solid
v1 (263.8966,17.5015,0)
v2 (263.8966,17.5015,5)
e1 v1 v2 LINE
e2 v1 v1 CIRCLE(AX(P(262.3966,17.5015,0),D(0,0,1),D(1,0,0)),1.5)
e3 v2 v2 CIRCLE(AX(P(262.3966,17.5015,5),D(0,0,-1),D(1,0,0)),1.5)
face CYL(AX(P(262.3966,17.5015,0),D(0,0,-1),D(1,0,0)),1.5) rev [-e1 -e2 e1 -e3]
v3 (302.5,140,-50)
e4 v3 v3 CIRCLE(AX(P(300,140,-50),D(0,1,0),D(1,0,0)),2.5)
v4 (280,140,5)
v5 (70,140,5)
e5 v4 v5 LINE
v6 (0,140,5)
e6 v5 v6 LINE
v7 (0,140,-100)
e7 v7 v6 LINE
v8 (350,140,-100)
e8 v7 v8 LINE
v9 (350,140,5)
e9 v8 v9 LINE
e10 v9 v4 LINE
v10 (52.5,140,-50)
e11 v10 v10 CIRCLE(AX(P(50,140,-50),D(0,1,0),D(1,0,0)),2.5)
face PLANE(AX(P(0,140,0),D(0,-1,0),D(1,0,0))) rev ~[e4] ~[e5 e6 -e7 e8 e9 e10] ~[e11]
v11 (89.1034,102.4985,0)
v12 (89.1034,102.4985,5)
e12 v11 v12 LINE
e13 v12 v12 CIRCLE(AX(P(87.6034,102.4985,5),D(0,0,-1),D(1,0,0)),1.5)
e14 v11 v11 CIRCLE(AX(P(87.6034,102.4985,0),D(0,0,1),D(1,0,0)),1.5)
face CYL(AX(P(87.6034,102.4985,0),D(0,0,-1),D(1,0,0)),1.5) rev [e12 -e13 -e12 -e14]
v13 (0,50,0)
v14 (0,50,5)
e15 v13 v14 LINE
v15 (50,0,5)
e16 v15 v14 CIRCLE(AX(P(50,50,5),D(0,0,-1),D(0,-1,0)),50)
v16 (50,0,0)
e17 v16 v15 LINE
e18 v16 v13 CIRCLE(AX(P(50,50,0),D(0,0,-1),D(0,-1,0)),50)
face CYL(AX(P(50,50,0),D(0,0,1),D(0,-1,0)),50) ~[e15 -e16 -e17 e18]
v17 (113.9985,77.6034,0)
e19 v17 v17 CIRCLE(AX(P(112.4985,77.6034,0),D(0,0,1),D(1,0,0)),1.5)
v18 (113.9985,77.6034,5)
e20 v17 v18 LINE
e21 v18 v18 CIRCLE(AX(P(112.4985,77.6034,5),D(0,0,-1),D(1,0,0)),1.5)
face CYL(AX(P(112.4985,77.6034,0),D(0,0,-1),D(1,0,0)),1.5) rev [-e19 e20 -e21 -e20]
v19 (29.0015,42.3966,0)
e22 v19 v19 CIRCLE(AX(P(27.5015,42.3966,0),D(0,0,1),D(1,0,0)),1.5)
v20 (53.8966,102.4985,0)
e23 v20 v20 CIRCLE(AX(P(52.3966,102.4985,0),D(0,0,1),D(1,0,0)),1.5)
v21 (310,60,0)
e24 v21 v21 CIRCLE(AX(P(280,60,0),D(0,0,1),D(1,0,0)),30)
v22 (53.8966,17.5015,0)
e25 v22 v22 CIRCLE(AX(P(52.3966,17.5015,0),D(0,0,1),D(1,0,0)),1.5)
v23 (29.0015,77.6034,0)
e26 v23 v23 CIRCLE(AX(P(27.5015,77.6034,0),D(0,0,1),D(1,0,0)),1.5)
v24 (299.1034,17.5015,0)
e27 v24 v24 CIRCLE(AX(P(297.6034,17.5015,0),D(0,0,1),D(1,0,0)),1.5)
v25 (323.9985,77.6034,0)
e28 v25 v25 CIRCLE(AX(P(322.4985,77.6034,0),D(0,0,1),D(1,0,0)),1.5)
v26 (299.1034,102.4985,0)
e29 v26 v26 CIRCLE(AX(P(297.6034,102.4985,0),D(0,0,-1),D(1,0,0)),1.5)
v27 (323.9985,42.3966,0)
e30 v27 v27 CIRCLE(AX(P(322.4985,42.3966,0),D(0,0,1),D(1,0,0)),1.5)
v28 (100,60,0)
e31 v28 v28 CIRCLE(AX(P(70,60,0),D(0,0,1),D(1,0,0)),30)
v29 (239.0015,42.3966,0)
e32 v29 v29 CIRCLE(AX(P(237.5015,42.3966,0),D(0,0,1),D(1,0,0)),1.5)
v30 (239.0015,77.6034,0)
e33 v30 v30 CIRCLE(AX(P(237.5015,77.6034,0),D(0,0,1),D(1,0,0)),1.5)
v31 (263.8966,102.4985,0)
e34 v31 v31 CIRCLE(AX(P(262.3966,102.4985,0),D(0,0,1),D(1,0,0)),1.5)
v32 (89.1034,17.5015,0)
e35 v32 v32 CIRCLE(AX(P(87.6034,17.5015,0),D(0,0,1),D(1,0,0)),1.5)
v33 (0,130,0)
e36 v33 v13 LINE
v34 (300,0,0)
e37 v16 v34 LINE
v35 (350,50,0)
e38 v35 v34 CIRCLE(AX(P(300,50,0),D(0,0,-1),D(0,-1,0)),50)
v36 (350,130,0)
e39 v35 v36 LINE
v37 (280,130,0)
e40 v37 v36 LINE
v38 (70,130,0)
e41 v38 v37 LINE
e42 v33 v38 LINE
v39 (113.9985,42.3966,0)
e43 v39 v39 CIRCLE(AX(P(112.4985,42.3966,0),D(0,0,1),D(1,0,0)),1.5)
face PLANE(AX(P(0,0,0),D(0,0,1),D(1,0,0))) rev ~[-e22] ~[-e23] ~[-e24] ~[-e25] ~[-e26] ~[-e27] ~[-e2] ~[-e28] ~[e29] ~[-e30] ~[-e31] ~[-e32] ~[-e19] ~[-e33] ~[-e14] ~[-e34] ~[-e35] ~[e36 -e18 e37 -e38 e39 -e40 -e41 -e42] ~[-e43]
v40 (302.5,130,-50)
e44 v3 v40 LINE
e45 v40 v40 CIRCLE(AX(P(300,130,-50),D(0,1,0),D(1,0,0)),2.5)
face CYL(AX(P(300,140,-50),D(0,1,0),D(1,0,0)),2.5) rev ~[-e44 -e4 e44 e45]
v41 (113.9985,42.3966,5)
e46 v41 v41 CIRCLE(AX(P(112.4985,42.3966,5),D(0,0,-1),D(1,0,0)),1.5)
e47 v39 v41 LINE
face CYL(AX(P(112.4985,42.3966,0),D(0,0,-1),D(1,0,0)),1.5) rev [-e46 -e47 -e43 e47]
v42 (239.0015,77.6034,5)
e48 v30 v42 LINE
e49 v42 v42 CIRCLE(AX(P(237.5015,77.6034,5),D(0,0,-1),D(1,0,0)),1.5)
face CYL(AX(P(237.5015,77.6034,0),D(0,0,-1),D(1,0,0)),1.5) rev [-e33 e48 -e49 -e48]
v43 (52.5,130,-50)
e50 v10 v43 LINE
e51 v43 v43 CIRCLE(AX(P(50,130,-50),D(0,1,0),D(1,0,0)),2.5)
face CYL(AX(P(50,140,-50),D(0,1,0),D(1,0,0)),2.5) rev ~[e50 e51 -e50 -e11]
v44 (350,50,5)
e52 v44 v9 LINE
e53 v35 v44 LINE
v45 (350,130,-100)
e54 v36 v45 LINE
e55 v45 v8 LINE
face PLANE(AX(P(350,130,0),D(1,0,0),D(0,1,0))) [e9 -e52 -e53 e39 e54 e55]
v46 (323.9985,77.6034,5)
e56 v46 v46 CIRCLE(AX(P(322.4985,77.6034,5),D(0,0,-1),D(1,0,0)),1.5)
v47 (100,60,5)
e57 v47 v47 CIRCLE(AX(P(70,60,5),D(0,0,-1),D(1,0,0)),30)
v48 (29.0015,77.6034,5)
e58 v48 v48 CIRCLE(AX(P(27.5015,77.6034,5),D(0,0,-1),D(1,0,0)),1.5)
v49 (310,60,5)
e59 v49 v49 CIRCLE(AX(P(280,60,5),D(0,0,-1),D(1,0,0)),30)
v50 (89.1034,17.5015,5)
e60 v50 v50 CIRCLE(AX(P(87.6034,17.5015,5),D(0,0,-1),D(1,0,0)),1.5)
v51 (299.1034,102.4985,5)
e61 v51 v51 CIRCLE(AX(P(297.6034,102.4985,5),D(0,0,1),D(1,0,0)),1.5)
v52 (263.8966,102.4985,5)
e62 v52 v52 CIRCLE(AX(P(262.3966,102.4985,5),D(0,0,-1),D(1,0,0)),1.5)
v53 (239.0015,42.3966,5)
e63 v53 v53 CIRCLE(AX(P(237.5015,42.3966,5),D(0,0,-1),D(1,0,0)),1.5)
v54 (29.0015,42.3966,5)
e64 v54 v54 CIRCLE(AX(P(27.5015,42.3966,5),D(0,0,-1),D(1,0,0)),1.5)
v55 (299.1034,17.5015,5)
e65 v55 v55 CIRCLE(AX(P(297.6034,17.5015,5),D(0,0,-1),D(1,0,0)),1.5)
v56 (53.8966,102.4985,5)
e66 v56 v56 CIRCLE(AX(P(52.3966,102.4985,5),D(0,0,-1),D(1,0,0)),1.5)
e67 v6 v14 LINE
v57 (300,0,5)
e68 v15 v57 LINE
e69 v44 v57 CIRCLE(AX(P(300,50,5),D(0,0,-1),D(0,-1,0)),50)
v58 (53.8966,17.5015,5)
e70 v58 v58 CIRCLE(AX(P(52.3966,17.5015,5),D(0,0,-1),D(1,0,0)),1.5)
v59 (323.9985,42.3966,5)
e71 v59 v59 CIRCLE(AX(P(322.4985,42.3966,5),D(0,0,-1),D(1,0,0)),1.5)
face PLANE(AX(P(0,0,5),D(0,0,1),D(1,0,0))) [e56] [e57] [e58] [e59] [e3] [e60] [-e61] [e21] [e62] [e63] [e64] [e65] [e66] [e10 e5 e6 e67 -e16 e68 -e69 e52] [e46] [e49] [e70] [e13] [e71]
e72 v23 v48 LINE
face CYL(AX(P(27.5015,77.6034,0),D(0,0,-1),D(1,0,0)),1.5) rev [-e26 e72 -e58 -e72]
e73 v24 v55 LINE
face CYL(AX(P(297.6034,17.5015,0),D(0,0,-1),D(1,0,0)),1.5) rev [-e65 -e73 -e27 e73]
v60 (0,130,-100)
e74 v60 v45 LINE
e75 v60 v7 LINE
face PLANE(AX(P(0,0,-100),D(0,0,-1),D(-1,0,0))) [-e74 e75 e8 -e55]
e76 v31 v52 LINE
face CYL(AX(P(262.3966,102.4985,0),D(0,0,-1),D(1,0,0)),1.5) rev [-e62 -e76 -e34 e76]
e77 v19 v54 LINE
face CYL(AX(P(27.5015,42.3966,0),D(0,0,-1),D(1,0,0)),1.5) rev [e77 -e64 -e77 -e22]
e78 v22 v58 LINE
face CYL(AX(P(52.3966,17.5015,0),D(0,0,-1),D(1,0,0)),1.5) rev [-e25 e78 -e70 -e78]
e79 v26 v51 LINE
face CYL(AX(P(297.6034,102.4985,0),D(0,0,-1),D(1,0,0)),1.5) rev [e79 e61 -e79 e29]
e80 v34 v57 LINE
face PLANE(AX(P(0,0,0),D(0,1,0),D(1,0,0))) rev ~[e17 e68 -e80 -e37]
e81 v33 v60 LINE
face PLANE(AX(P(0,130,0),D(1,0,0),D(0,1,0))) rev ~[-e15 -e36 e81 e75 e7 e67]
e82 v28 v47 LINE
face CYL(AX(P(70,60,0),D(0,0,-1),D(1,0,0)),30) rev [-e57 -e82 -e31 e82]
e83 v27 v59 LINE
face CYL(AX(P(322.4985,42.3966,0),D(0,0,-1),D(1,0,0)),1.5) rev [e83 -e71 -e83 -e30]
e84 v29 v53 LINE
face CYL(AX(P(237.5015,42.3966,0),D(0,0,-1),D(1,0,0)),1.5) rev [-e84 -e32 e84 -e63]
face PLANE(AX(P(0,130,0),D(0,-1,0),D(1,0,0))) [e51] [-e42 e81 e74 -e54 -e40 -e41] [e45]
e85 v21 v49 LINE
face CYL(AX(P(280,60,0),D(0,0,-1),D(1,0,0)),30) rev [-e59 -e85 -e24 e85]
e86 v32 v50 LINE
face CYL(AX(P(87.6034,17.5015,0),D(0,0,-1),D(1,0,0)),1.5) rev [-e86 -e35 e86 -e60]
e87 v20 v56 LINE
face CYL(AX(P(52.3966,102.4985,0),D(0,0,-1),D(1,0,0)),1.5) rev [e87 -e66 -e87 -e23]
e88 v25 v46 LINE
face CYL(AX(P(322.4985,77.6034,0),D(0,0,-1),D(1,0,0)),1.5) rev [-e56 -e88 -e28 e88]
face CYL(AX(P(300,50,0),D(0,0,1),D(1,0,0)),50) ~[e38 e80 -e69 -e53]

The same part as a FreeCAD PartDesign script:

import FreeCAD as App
import Part
import Sketcher


def edges_at(feature, points):
    """Names of the edges that pass closest to the given points."""
    edges = feature.Shape.Edges
    near = lambda p: min(range(len(edges)), key=lambda i: edges[i].distToShape(Part.Vertex(*p))[0])
    return sorted({f"Edge{near(p) + 1}" for p in points})


def add_polygon(sketch, points):
    """Adds a closed chain of lines whose ends are joined by coincident constraints."""
    first, n = sketch.GeometryCount, len(points)
    for a, b in zip(points, points[1:] + points[:1]):
        sketch.addGeometry(Part.LineSegment(App.Vector(*a, 0), App.Vector(*b, 0)), False)
    for i in range(n):
        sketch.addConstraint(Sketcher.Constraint("Coincident", first + i, 2, first + (i + 1) % n, 1))

doc = App.newDocument("Part")
body = doc.addObject("PartDesign::Body", "Body")

# Sketch on XY plane
sketch1 = doc.addObject("Sketcher::SketchObject", "Sketch")
body.addObject(sketch1)
sketch1.AttachmentSupport = (doc.XY_Plane, [""])
sketch1.MapMode = "FlatFace"
add_polygon(sketch1, [(0, 140), (0, 0), (350, 0), (350, 140), (280, 140), (70, 140)])  # lines 0-5
sketch1.addGeometry(Part.Circle(App.Vector(297.6034, 102.4985, 0), App.Vector(0, 0, 1), 1.5), False)  # 6
sketch1.addGeometry(Part.Circle(App.Vector(322.4985, 77.6034, 0), App.Vector(0, 0, 1), 1.5), False)  # 7
sketch1.addGeometry(Part.Circle(App.Vector(322.4985, 42.3966, 0), App.Vector(0, 0, 1), 1.5), False)  # 8
sketch1.addGeometry(Part.Circle(App.Vector(297.6034, 17.5015, 0), App.Vector(0, 0, 1), 1.5), False)  # 9
sketch1.addGeometry(Part.Circle(App.Vector(262.3966, 17.5015, 0), App.Vector(0, 0, 1), 1.5), False)  # 10
sketch1.addGeometry(Part.Circle(App.Vector(237.5015, 42.3966, 0), App.Vector(0, 0, 1), 1.5), False)  # 11
sketch1.addGeometry(Part.Circle(App.Vector(237.5015, 77.6034, 0), App.Vector(0, 0, 1), 1.5), False)  # 12
sketch1.addGeometry(Part.Circle(App.Vector(262.3966, 102.4985, 0), App.Vector(0, 0, 1), 1.5), False)  # 13
sketch1.addGeometry(Part.Circle(App.Vector(280, 60, 0), App.Vector(0, 0, 1), 30), False)  # 14
sketch1.addGeometry(Part.Circle(App.Vector(52.3966, 102.4985, 0), App.Vector(0, 0, 1), 1.5), False)  # 15
sketch1.addGeometry(Part.Circle(App.Vector(27.5015, 77.6034, 0), App.Vector(0, 0, 1), 1.5), False)  # 16
sketch1.addGeometry(Part.Circle(App.Vector(27.5015, 42.3966, 0), App.Vector(0, 0, 1), 1.5), False)  # 17
sketch1.addGeometry(Part.Circle(App.Vector(52.3966, 17.5015, 0), App.Vector(0, 0, 1), 1.5), False)  # 18
sketch1.addGeometry(Part.Circle(App.Vector(87.6034, 17.5015, 0), App.Vector(0, 0, 1), 1.5), False)  # 19
sketch1.addGeometry(Part.Circle(App.Vector(112.4985, 42.3966, 0), App.Vector(0, 0, 1), 1.5), False)  # 20
sketch1.addGeometry(Part.Circle(App.Vector(112.4985, 77.6034, 0), App.Vector(0, 0, 1), 1.5), False)  # 21
sketch1.addGeometry(Part.Circle(App.Vector(87.6034, 102.4985, 0), App.Vector(0, 0, 1), 1.5), False)  # 22
sketch1.addGeometry(Part.Circle(App.Vector(70, 60, 0), App.Vector(0, 0, 1), 30), False)  # 23
sketch1.addConstraint(Sketcher.Constraint("Vertical", 0))
sketch1.addConstraint(Sketcher.Constraint("Horizontal", 1))
sketch1.addConstraint(Sketcher.Constraint("Vertical", 2))
sketch1.addConstraint(Sketcher.Constraint("Horizontal", 3))
sketch1.addConstraint(Sketcher.Constraint("Horizontal", 4))
sketch1.addConstraint(Sketcher.Constraint("Horizontal", 5))
sketch1.addConstraint(Sketcher.Constraint("Coincident", 0, 2, -1, 1))
sketch1.addConstraint(Sketcher.Constraint("Equal", 6, 7))
sketch1.addConstraint(Sketcher.Constraint("Equal", 7, 8))
sketch1.addConstraint(Sketcher.Constraint("Equal", 8, 9))
sketch1.addConstraint(Sketcher.Constraint("Equal", 9, 10))
sketch1.addConstraint(Sketcher.Constraint("Equal", 10, 11))
sketch1.addConstraint(Sketcher.Constraint("Equal", 11, 12))
sketch1.addConstraint(Sketcher.Constraint("Equal", 12, 13))
sketch1.addConstraint(Sketcher.Constraint("Equal", 13, 15))
sketch1.addConstraint(Sketcher.Constraint("Equal", 15, 16))
sketch1.addConstraint(Sketcher.Constraint("Equal", 16, 17))
sketch1.addConstraint(Sketcher.Constraint("Equal", 17, 18))
sketch1.addConstraint(Sketcher.Constraint("Equal", 18, 19))
sketch1.addConstraint(Sketcher.Constraint("Equal", 19, 20))
sketch1.addConstraint(Sketcher.Constraint("Equal", 20, 21))
sketch1.addConstraint(Sketcher.Constraint("Equal", 21, 22))
sketch1.addConstraint(Sketcher.Constraint("Equal", 14, 23))
sketch1.addConstraint(Sketcher.Constraint("Horizontal", 9, 3, 10, 3))
sketch1.addConstraint(Sketcher.Constraint("Horizontal", 8, 3, 11, 3))
sketch1.addConstraint(Sketcher.Constraint("Horizontal", 7, 3, 12, 3))
sketch1.addConstraint(Sketcher.Constraint("Horizontal", 6, 3, 13, 3))
sketch1.addConstraint(Sketcher.Constraint("Horizontal", 13, 3, 15, 3))
sketch1.addConstraint(Sketcher.Constraint("Horizontal", 12, 3, 16, 3))
sketch1.addConstraint(Sketcher.Constraint("Horizontal", 11, 3, 17, 3))
sketch1.addConstraint(Sketcher.Constraint("Horizontal", 10, 3, 18, 3))
sketch1.addConstraint(Sketcher.Constraint("Horizontal", 18, 3, 19, 3))
sketch1.addConstraint(Sketcher.Constraint("Horizontal", 17, 3, 20, 3))
sketch1.addConstraint(Sketcher.Constraint("Horizontal", 16, 3, 21, 3))
sketch1.addConstraint(Sketcher.Constraint("Horizontal", 15, 3, 22, 3))
sketch1.addConstraint(Sketcher.Constraint("Horizontal", 14, 3, 23, 3))
sketch1.addConstraint(Sketcher.Constraint("Vertical", 7, 3, 8, 3))
sketch1.addConstraint(Sketcher.Constraint("Vertical", 6, 3, 9, 3))
sketch1.addConstraint(Sketcher.Constraint("Vertical", 11, 3, 12, 3))
sketch1.addConstraint(Sketcher.Constraint("Vertical", 10, 3, 13, 3))
sketch1.addConstraint(Sketcher.Constraint("Vertical", 16, 3, 17, 3))
sketch1.addConstraint(Sketcher.Constraint("Vertical", 15, 3, 18, 3))
sketch1.addConstraint(Sketcher.Constraint("Vertical", 20, 3, 21, 3))
sketch1.addConstraint(Sketcher.Constraint("Vertical", 19, 3, 22, 3))
sketch1.addConstraint(Sketcher.Constraint("Vertical", 14, 3, 3, 2))
sketch1.addConstraint(Sketcher.Constraint("Vertical", 23, 3, 4, 2))
sketch1.addConstraint(Sketcher.Constraint("Equal", 3, 5))
sketch1.addConstraint(Sketcher.Constraint("Diameter", 6, 3.0))
sketch1.addConstraint(Sketcher.Constraint("Diameter", 14, 60.0))
sketch1.addConstraint(Sketcher.Constraint("DistanceX", 1, 1, 1, 2, 350.0))
sketch1.addConstraint(Sketcher.Constraint("DistanceX", 3, 2, 3, 1, 70.0))
sketch1.addConstraint(Sketcher.Constraint("DistanceY", 0, 2, 0, 1, 140.0))
sketch1.addConstraint(Sketcher.Constraint("DistanceY", -1, 1, 14, 3, 60.0))
sketch1.addConstraint(Sketcher.Constraint("DistanceX", 15, 3, 13, 3, 210.0))
sketch1.addConstraint(Sketcher.Constraint("DistanceX", 16, 3, 12, 3, 210.0))
sketch1.addConstraint(Sketcher.Constraint("DistanceX", 6, 3, 7, 3, 24.895))
sketch1.addConstraint(Sketcher.Constraint("DistanceY", 7, 3, 6, 3, 24.895))
sketch1.addConstraint(Sketcher.Constraint("DistanceY", 8, 3, 6, 3, 60.102))
sketch1.addConstraint(Sketcher.Constraint("DistanceY", 9, 3, 8, 3, 24.895))
sketch1.addConstraint(Sketcher.Constraint("DistanceX", 10, 3, 8, 3, 60.102))
sketch1.addConstraint(Sketcher.Constraint("DistanceX", 11, 3, 10, 3, 24.895))
sketch1.addConstraint(Sketcher.Constraint("DistanceX", 17, 3, 19, 3, 60.102))
sketch1.addConstraint(Sketcher.Constraint("DistanceX", 19, 3, 20, 3, 24.895))
sketch1.addConstraint(Sketcher.Constraint("DistanceX", -1, 1, 6, 3, 297.6034))
sketch1.addConstraint(Sketcher.Constraint("DistanceY", -1, 1, 6, 3, 102.4985))
pad1 = doc.addObject("PartDesign::Pad", "Pad")
body.addObject(pad1)
pad1.Profile = sketch1
pad1.Length = 5

# Sketch on XY plane
sketch2 = doc.addObject("Sketcher::SketchObject", "Sketch001")
body.addObject(sketch2)
sketch2.AttachmentSupport = (doc.XY_Plane, [""])
sketch2.MapMode = "FlatFace"
add_polygon(sketch2, [(350, 140), (350, 130), (0, 130), (0, 140)])  # lines 0-3
sketch2.addConstraint(Sketcher.Constraint("Vertical", 0))
sketch2.addConstraint(Sketcher.Constraint("Horizontal", 1))
sketch2.addConstraint(Sketcher.Constraint("Vertical", 2))
sketch2.addConstraint(Sketcher.Constraint("Horizontal", 3))
sketch2.addConstraint(Sketcher.Constraint("PointOnObject", 1, 2, -2))
sketch2.addConstraint(Sketcher.Constraint("DistanceY", 0, 2, 0, 1, 10.0))
sketch2.addConstraint(Sketcher.Constraint("DistanceX", 1, 2, 1, 1, 350.0))
sketch2.addConstraint(Sketcher.Constraint("DistanceY", -1, 1, 0, 2, 130.0))
pad2 = doc.addObject("PartDesign::Pad", "Pad001")
body.addObject(pad2)
pad2.Profile = sketch2
pad2.Length = 100
pad2.Reversed = True

# Sketch on XZ plane
sketch3 = doc.addObject("Sketcher::SketchObject", "Sketch002")
body.addObject(sketch3)
sketch3.AttachmentSupport = (doc.XZ_Plane, [""])
sketch3.MapMode = "FlatFace"
sketch3.AttachmentOffset = App.Placement(App.Vector(0, 0, -140), App.Rotation())
sketch3.addGeometry(Part.Circle(App.Vector(50, -50, 0), App.Vector(0, 0, 1), 2.5), False)
sketch3.addGeometry(Part.Circle(App.Vector(300, -50, 0), App.Vector(0, 0, 1), 2.5), False)
sketch3.addConstraint(Sketcher.Constraint("Equal", 0, 1))
sketch3.addConstraint(Sketcher.Constraint("Horizontal", 0, 3, 1, 3))
sketch3.addConstraint(Sketcher.Constraint("Diameter", 0, 5.0))
sketch3.addConstraint(Sketcher.Constraint("DistanceX", -1, 1, 0, 3, 50.0))
sketch3.addConstraint(Sketcher.Constraint("DistanceY", 0, 3, -1, 1, 50.0))
sketch3.addConstraint(Sketcher.Constraint("DistanceX", 0, 3, 1, 3, 250.0))
pocket1 = doc.addObject("PartDesign::Pocket", "Pocket")
body.addObject(pocket1)
pocket1.Profile = sketch3
pocket1.Length = 100
pocket1.Reversed = True
doc.recompute()

fillet = doc.addObject("PartDesign::Fillet", "Fillet")
body.addObject(fillet)
fillet.Base = (pocket1, edges_at(pocket1, [(350, 0, 2.5), (0, 0, 2.5)]))
fillet.Radius = 50

doc.recompute()
